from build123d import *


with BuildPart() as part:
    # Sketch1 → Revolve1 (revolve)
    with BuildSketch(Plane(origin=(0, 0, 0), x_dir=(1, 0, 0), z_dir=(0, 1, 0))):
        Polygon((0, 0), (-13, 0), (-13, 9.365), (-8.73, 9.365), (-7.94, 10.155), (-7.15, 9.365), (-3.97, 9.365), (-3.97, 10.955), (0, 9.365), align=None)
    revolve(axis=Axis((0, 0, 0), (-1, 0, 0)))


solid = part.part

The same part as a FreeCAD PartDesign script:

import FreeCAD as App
import Part
import Sketcher

V = App.Vector

doc = App.newDocument("Part")
body = doc.addObject("PartDesign::Body", "Body")

# Sketch on XZ plane
sketch1 = body.newObject("Sketcher::SketchObject", "Sketch")
sketch1.AttachmentSupport = (doc.getObject("XZ_Plane"), [""])
sketch1.MapMode = "FlatFace"
sketch1.addGeometry([
    Part.LineSegment(V(-13, 0, 0), V(0, 0, 0)),  # 0
    Part.LineSegment(V(0, 0, 0), V(0, -9.4, 0)),  # 1
    Part.LineSegment(V(0, -9.4, 0), V(-4, -11, 0)),  # 2
    Part.LineSegment(V(-4, -11, 0), V(-4, -9.4, 0)),  # 3
    Part.LineSegment(V(-4, -9.4, 0), V(-7.2, -9.4, 0)),  # 4
    Part.LineSegment(V(-7.2, -9.4, 0), V(-7.9, -10.2, 0)),  # 5
    Part.LineSegment(V(-7.9, -10.2, 0), V(-8.7, -9.4, 0)),  # 6
    Part.LineSegment(V(-8.7, -9.4, 0), V(-13, -9.4, 0)),  # 7
    Part.LineSegment(V(-13, -9.4, 0), V(-13, 0, 0)),  # 8
], False)
sketch1.addConstraint([
    Sketcher.Constraint("Coincident", 0, 2, 1, 1),
    Sketcher.Constraint("Coincident", 1, 2, 2, 1),
    Sketcher.Constraint("Coincident", 2, 2, 3, 1),
    Sketcher.Constraint("Coincident", 3, 2, 4, 1),
    Sketcher.Constraint("Coincident", 4, 2, 5, 1),
    Sketcher.Constraint("Coincident", 5, 2, 6, 1),
    Sketcher.Constraint("Coincident", 6, 2, 7, 1),
    Sketcher.Constraint("Coincident", 7, 2, 8, 1),
    Sketcher.Constraint("Coincident", 8, 2, 0, 1),
    Sketcher.Constraint("Horizontal", 0),
    Sketcher.Constraint("Vertical", 1),
    Sketcher.Constraint("Vertical", 3),
    Sketcher.Constraint("Horizontal", 4),
    Sketcher.Constraint("Horizontal", 7),
    Sketcher.Constraint("Vertical", 8),
    Sketcher.Constraint("Coincident", 0, 2, -1, 1),
    Sketcher.Constraint("Perpendicular", 5, 6),
    Sketcher.Constraint("Horizontal", 1, 2, 3, 2),
    Sketcher.Constraint("Horizontal", 4, 2, 6, 2),
    Sketcher.Constraint("Equal", 5, 6),
    Sketcher.Constraint("DistanceX", 0, 1, 0, 2, 13.0),
    Sketcher.Constraint("DistanceX", 4, 2, 4, 1, 3.18),
    Sketcher.Constraint("DistanceX", 7, 2, 7, 1, 4.27),
    Sketcher.Constraint("DistanceY", 3, 1, 3, 2, 1.59),
    Sketcher.Constraint("DistanceY", 2, 2, 5, 2, 0.8),
    Sketcher.Constraint("DistanceY", 1, 2, 1, 1, 9.365),
])
revolution = body.newObject("PartDesign::Revolution", "Revolution")
revolution.Profile = sketch1
revolution.ReferenceAxis = (sketch1, ["H_Axis"])
revolution.Angle = 360

doc.recompute()
